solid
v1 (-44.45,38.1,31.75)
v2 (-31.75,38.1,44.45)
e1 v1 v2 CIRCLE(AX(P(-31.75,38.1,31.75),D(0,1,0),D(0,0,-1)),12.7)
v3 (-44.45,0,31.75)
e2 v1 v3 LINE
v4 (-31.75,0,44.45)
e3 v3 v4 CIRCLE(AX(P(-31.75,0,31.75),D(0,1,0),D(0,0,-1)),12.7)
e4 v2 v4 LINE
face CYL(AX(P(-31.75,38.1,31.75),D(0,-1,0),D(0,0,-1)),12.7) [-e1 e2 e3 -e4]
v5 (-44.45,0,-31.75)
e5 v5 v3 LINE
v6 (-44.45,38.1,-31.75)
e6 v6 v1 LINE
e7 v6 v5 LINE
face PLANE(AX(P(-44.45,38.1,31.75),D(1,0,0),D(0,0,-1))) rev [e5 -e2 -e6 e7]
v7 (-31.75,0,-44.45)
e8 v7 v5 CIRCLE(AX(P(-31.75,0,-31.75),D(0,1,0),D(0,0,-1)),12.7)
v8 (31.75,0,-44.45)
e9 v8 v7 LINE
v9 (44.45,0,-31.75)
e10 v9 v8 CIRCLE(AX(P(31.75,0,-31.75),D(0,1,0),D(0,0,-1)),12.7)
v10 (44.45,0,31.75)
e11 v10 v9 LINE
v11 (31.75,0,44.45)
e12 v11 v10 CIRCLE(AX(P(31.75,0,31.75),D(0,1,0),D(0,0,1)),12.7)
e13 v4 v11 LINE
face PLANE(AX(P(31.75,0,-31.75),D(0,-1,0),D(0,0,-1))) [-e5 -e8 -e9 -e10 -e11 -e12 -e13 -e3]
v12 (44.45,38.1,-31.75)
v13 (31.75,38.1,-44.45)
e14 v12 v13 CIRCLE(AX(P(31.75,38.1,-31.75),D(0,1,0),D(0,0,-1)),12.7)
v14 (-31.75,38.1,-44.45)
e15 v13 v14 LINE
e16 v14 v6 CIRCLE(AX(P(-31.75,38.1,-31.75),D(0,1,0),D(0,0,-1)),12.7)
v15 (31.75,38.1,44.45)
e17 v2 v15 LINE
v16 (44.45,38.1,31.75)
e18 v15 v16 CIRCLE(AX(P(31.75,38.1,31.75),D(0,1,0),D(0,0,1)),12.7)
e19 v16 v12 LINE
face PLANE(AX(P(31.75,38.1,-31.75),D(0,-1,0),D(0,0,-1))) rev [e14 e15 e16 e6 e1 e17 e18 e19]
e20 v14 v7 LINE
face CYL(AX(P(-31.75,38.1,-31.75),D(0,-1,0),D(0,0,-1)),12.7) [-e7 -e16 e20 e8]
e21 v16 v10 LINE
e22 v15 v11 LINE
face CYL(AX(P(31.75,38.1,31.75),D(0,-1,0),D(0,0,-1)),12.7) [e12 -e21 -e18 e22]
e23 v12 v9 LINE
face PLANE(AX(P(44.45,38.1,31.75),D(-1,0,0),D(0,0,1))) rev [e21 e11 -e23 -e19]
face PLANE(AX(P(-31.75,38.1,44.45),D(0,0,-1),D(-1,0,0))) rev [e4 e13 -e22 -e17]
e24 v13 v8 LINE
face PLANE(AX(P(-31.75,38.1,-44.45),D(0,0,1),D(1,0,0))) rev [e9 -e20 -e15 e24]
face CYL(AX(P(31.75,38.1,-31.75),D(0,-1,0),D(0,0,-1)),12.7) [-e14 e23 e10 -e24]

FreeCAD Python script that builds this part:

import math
import FreeCAD as App
import Part
import Sketcher
from FreeCAD import Vector
Q = App.Units.Quantity

doc = App.newDocument("Part")
body = doc.addObject("PartDesign::Body", "Body")

sketch1 = body.newObject("Sketcher::SketchObject", "Sketch")
sketch1.AttachmentSupport = (doc.getObject("XZ_Plane"), [""])
sketch1.MapMode = "FlatFace"
sketch1.addGeometry([
    Part.LineSegment(Vector(-31.75, 44.45, 0), Vector(31.75, 44.45, 0)),
    Part.ArcOfCircle(Part.Circle(Vector(31.75, 31.75, 0), Vector(0, 0, 1), 12.7), math.radians(0), math.radians(90)),
    Part.LineSegment(Vector(44.45, 31.75, 0), Vector(44.45, -31.75, 0)),
    Part.ArcOfCircle(Part.Circle(Vector(31.75, -31.75, 0), Vector(0, 0, 1), 12.7), math.radians(-90), math.radians(0)),
    Part.LineSegment(Vector(31.75, -44.45, 0), Vector(-31.75, -44.45, 0)),
    Part.ArcOfCircle(Part.Circle(Vector(-31.75, -31.75, 0), Vector(0, 0, 1), 12.7), math.radians(180), math.radians(270)),
    Part.LineSegment(Vector(-44.45, -31.75, 0), Vector(-44.45, 31.75, 0)),
    Part.ArcOfCircle(Part.Circle(Vector(-31.75, 31.75, 0), Vector(0, 0, 1), 12.7), math.radians(90), math.radians(180)),
], False)
sketch1.addConstraint([
    Sketcher.Constraint("Tangent", 0, 2, 1, 2),
    Sketcher.Constraint("Tangent", 1, 1, 2, 1),
    Sketcher.Constraint("Tangent", 2, 2, 3, 2),
    Sketcher.Constraint("Tangent", 3, 1, 4, 1),
    Sketcher.Constraint("Tangent", 4, 2, 5, 2),
    Sketcher.Constraint("Tangent", 5, 1, 6, 1),
    Sketcher.Constraint("Tangent", 6, 2, 7, 2),
    Sketcher.Constraint("Tangent", 7, 1, 0, 1),
    Sketcher.Constraint("Horizontal", 0),
    Sketcher.Constraint("Vertical", 2),
    Sketcher.Constraint("Horizontal", 4),
    Sketcher.Constraint("Vertical", 6),
    Sketcher.Constraint("Equal", 1, 3),
    Sketcher.Constraint("Equal", 3, 5),
    Sketcher.Constraint("Equal", 5, 7),
    Sketcher.Constraint("Symmetric", 1, 3, 5, 3, -1, 1),
    Sketcher.Constraint("Equal", 4, 2),
    Sketcher.Constraint("Radius", 1, Q("0.5 in")),
    Sketcher.Constraint("DistanceX", 0, 1, 0, 2, Q("2.5 in")),
])
pad1 = body.newObject("PartDesign::Pad", "Pad")
pad1.Profile = sketch1
pad1.Length = Q("1.5 in")
pad1.Reversed = True

doc.recompute()
